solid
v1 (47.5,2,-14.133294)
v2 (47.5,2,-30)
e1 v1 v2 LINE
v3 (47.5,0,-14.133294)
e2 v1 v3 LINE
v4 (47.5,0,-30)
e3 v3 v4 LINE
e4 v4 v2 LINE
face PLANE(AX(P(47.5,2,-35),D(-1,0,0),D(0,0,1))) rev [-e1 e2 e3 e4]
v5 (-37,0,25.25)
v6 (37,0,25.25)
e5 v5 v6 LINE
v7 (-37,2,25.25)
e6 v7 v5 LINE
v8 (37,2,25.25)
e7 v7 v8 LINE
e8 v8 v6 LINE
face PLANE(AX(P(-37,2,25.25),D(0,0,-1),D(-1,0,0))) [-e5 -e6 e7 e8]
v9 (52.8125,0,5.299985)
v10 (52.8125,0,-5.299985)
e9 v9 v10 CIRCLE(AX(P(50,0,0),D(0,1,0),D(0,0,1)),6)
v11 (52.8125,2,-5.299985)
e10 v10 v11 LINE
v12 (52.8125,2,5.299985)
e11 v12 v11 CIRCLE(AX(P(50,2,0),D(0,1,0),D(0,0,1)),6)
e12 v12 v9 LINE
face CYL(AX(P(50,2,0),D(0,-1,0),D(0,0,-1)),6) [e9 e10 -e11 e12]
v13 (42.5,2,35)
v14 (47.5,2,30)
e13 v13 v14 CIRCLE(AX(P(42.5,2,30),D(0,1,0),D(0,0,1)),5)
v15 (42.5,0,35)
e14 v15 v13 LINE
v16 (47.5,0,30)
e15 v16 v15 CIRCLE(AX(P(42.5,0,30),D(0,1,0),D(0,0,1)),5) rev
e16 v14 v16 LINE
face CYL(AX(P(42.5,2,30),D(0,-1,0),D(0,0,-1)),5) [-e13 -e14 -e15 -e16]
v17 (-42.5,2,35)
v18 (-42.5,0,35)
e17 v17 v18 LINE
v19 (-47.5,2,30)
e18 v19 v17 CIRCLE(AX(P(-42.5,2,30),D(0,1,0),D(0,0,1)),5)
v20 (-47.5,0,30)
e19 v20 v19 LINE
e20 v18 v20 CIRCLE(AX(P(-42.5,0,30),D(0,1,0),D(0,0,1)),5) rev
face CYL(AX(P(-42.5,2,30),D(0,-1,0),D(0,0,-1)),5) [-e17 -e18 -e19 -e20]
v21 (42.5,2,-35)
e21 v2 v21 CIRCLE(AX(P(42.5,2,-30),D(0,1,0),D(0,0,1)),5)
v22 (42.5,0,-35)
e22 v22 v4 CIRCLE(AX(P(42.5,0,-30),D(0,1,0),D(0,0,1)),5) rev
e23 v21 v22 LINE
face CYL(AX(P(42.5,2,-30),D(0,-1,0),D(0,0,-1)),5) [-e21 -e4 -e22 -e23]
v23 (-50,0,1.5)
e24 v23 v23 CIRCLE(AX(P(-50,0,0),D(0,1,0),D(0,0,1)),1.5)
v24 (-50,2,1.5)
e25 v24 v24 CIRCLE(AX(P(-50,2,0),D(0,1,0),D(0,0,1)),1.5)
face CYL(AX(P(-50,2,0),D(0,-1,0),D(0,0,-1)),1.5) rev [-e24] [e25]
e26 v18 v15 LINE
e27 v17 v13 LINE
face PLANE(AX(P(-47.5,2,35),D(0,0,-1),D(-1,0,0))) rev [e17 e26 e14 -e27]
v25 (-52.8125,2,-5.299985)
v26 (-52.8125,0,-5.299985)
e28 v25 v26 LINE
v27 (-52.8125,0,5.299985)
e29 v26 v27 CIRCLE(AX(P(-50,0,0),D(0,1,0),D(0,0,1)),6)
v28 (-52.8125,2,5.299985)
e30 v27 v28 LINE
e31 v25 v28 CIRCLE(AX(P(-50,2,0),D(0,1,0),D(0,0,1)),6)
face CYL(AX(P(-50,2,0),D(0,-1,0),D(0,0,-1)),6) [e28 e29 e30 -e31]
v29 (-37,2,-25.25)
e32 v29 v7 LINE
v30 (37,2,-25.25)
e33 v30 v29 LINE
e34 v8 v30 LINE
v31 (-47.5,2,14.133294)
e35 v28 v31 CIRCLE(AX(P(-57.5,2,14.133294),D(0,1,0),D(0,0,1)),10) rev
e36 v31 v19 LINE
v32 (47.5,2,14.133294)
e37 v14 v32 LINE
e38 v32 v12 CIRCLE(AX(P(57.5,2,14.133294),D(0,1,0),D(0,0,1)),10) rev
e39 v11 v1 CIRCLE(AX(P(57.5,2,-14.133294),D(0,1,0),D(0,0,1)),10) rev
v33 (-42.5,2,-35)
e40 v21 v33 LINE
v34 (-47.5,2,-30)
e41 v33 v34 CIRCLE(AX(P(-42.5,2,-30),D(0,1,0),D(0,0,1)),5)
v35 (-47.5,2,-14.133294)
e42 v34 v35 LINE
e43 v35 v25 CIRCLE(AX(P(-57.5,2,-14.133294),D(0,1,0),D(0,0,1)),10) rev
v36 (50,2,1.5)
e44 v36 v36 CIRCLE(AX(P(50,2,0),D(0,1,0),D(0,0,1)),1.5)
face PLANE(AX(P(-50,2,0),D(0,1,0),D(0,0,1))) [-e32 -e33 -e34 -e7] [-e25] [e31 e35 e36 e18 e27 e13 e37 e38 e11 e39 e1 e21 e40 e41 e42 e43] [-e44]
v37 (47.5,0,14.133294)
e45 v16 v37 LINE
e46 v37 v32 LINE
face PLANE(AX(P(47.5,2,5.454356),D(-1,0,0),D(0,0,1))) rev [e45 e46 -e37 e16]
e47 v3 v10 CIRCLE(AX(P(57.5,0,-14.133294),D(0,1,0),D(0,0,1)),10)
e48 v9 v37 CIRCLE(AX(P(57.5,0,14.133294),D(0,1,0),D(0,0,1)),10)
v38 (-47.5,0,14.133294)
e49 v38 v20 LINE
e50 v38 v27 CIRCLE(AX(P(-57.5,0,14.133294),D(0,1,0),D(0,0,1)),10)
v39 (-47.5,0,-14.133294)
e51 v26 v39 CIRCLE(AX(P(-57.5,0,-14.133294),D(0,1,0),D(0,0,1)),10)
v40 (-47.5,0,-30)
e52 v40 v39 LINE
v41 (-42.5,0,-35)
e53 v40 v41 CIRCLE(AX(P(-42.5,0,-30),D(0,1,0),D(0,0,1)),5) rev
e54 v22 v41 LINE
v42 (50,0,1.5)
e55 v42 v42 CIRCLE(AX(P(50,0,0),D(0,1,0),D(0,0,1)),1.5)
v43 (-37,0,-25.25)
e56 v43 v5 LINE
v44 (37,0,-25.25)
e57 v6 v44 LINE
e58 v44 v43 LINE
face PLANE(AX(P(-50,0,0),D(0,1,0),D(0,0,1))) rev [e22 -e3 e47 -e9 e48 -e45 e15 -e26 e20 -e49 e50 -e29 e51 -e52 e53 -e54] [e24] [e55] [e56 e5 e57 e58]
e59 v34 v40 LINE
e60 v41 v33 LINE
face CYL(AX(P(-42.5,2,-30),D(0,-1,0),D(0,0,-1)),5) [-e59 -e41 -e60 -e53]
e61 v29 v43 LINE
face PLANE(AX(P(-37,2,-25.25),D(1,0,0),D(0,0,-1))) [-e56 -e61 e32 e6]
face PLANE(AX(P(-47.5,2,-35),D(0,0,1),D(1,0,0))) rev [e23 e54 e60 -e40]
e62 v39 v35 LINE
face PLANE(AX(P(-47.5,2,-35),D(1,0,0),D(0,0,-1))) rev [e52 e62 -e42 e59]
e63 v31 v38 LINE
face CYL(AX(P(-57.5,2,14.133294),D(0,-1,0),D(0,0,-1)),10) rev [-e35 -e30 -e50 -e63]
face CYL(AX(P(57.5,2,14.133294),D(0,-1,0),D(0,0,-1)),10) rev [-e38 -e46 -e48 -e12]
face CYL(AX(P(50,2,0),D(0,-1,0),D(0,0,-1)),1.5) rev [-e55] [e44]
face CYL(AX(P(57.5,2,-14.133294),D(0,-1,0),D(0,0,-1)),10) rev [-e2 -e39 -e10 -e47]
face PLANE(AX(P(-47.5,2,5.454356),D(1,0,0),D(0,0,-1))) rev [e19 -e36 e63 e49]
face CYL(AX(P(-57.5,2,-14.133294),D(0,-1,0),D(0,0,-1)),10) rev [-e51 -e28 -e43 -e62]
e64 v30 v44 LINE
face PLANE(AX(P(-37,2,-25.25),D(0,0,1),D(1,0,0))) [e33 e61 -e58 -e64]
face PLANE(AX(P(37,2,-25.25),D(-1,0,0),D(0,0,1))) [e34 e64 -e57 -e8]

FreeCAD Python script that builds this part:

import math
import FreeCAD as App
import Part
import Sketcher
Q = App.Units.Quantity


def edges_at(feature, points):
    """Names of the edges that pass closest to the given points."""
    edges = feature.Shape.Edges
    near = lambda p: min(range(len(edges)), key=lambda i: edges[i].distToShape(Part.Vertex(*p))[0])
    return sorted({f"Edge{near(p) + 1}" for p in points})

doc = App.newDocument("Part")
body = doc.addObject("PartDesign::Body", "Body")

sketch1 = doc.addObject("Sketcher::SketchObject", "Sketch")
body.addObject(sketch1)
sketch1.AttachmentSupport = (doc.XZ_Plane, [""])
sketch1.MapMode = "FlatFace"
sketch1.addGeometry([
    Part.LineSegment(App.Vector(47.5, -35, 0), App.Vector(-47.5, -35, 0)),
    Part.LineSegment(App.Vector(-47.5, -35, 0), App.Vector(-47.5, -5.5, 0)),
    Part.ArcOfCircle(Part.Circle(App.Vector(-50, 0, 0), App.Vector(0, 0, 1), 6), math.radians(65), math.radians(295)),
    Part.LineSegment(App.Vector(-47.5, 5.5, 0), App.Vector(-47.5, 35, 0)),
    Part.LineSegment(App.Vector(-47.5, 35, 0), App.Vector(47.5, 35, 0)),
    Part.LineSegment(App.Vector(47.5, 35, 0), App.Vector(47.5, 5.5, 0)),
    Part.ArcOfCircle(Part.Circle(App.Vector(50, 0, 0), App.Vector(0, 0, 1), 6), math.radians(-115), math.radians(115)),
    Part.LineSegment(App.Vector(47.5, -5.5, 0), App.Vector(47.5, -35, 0)),
    Part.Circle(App.Vector(50, 0, 0), App.Vector(0, 0, 1), 1.5),
    Part.LineSegment(App.Vector(-37, 25.2, 0), App.Vector(-37, -25.2, 0)),
    Part.LineSegment(App.Vector(-37, -25.2, 0), App.Vector(37, -25.2, 0)),
    Part.LineSegment(App.Vector(37, -25.2, 0), App.Vector(37, 25.2, 0)),
    Part.LineSegment(App.Vector(37, 25.2, 0), App.Vector(-37, 25.2, 0)),
    Part.Circle(App.Vector(-50, 0, 0), App.Vector(0, 0, 1), 1.5),
], False)
sketch1.addConstraint([
    Sketcher.Constraint("Coincident", 0, 2, 1, 1),
    Sketcher.Constraint("Coincident", 1, 2, 2, 2),
    Sketcher.Constraint("Coincident", 2, 1, 3, 1),
    Sketcher.Constraint("Coincident", 3, 2, 4, 1),
    Sketcher.Constraint("Coincident", 4, 2, 5, 1),
    Sketcher.Constraint("Coincident", 5, 2, 6, 2),
    Sketcher.Constraint("Coincident", 6, 1, 7, 1),
    Sketcher.Constraint("Coincident", 7, 2, 0, 1),
    Sketcher.Constraint("Coincident", 9, 2, 10, 1),
    Sketcher.Constraint("Coincident", 10, 2, 11, 1),
    Sketcher.Constraint("Coincident", 11, 2, 12, 1),
    Sketcher.Constraint("Coincident", 12, 2, 9, 1),
    Sketcher.Constraint("Horizontal", 0),
    Sketcher.Constraint("Vertical", 1),
    Sketcher.Constraint("Vertical", 3),
    Sketcher.Constraint("Horizontal", 4),
    Sketcher.Constraint("Vertical", 5),
    Sketcher.Constraint("Vertical", 7),
    Sketcher.Constraint("Vertical", 9),
    Sketcher.Constraint("Horizontal", 10),
    Sketcher.Constraint("Vertical", 11),
    Sketcher.Constraint("Horizontal", 12),
    Sketcher.Constraint("Coincident", 8, 3, 6, 3),
    Sketcher.Constraint("Coincident", 13, 3, 2, 3),
    Sketcher.Constraint("Equal", 2, 6),
    Sketcher.Constraint("Equal", 8, 13),
    Sketcher.Constraint("Symmetric", 2, 3, 6, 3, -1, 1),
    Sketcher.Constraint("Symmetric", 0, 2, 4, 2, -1, 1),
    Sketcher.Constraint("Symmetric", 9, 2, 11, 2, -1, 1),
    Sketcher.Constraint("Symmetric", 2, 1, 5, 2, -2),
    Sketcher.Constraint("Horizontal", 1, 2, 6, 1),
    Sketcher.Constraint("Diameter", 8, Q("3 mm")),
    Sketcher.Constraint("Radius", 2, Q("6 mm")),
    Sketcher.Constraint("DistanceX", 0, 2, 0, 1, Q("95 mm")),
    Sketcher.Constraint("DistanceX", 10, 1, 10, 2, Q("74 mm")),
    Sketcher.Constraint("DistanceY", 9, 2, 9, 1, Q("50.5 mm")),
    Sketcher.Constraint("DistanceX", 2, 3, -1, 1, Q("50 mm")),
    Sketcher.Constraint("DistanceY", 0, 2, -1, 1, Q("35 mm")),
])
pad1 = doc.addObject("PartDesign::Pad", "Pad")
body.addObject(pad1)
pad1.Profile = sketch1
pad1.Length = 2
pad1.Reversed = True
doc.recompute()

fillet = doc.addObject("PartDesign::Fillet", "Fillet")
body.addObject(fillet)
fillet.Base = (pad1, edges_at(pad1, [
    (-47.5, 1, -35),
    (47.5, 1, -35),
    (47.5, 1, 35),
    (-47.5, 1, 35),
]))
fillet.Radius = 5
doc.recompute()

fillet2 = doc.addObject("PartDesign::Fillet", "Fillet001")
body.addObject(fillet2)
fillet2.Base = (fillet, edges_at(fillet, [
    (47.5, 1, -5.454),
    (47.5, 1, 5.454),
    (-47.5, 1, 5.454),
    (-47.5, 1, -5.454),
]))
fillet2.Radius = 10

doc.recompute()
